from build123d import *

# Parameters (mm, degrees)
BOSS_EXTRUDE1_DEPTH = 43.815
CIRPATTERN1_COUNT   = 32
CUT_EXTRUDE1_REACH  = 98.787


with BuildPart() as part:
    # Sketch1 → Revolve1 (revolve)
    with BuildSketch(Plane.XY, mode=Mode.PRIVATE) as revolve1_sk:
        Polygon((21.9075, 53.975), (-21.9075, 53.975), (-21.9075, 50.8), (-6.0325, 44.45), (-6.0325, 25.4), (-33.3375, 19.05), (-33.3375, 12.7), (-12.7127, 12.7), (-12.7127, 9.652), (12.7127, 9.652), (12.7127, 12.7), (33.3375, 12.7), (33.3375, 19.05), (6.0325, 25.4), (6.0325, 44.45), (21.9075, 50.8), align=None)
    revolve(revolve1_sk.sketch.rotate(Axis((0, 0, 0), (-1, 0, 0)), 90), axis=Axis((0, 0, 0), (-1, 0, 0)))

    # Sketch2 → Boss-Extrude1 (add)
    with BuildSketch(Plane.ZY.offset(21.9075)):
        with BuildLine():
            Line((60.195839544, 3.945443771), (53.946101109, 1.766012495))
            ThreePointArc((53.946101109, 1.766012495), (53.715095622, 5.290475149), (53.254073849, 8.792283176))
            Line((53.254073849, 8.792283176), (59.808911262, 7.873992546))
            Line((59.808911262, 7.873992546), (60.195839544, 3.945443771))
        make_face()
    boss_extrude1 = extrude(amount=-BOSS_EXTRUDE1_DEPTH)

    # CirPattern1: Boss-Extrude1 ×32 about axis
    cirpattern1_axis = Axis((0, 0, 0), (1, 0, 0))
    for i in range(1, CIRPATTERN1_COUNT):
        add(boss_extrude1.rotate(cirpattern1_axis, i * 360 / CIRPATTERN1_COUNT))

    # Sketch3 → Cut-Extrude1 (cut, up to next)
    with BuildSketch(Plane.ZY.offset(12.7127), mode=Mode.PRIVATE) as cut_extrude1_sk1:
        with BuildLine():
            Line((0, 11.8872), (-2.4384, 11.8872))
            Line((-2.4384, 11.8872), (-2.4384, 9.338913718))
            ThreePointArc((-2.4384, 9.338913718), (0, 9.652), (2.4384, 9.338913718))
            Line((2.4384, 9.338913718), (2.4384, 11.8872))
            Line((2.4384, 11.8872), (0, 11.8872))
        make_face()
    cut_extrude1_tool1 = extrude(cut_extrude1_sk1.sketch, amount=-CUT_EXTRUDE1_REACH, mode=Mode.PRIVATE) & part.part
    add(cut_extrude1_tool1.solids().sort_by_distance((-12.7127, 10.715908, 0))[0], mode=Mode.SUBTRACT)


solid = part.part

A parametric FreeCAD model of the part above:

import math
import FreeCAD as App
import Part
import Sketcher
from FreeCAD import Vector
Q = App.Units.Quantity

doc = App.newDocument("Part")
body = doc.addObject("PartDesign::Body", "Body")

sketch1 = doc.addObject("Sketcher::SketchObject", "Sketch")
body.addObject(sketch1)
sketch1.AttachmentSupport = (doc.XY_Plane, [""])
sketch1.MapMode = "FlatFace"
sketch1.addGeometry(Part.LineSegment(Vector(21.9, 54, 0), Vector(-21.9, 54, 0)), False)
sketch1.addGeometry(Part.LineSegment(Vector(-21.9, 54, 0), Vector(-21.9, 50.8, 0)), False)
sketch1.addGeometry(Part.LineSegment(Vector(-21.9, 50.8, 0), Vector(-6, 44.5, 0)), False)
sketch1.addGeometry(Part.LineSegment(Vector(-6, 44.5, 0), Vector(-6, 25.4, 0)), False)
sketch1.addGeometry(Part.LineSegment(Vector(-6, 25.4, 0), Vector(-33.3, 19.1, 0)), False)
sketch1.addGeometry(Part.LineSegment(Vector(-33.3, 19.1, 0), Vector(-33.3, 12.7, 0)), False)
sketch1.addGeometry(Part.LineSegment(Vector(-33.3, 12.7, 0), Vector(-12.7, 12.7, 0)), False)
sketch1.addGeometry(Part.LineSegment(Vector(-12.7, 12.7, 0), Vector(-12.7, 9.7, 0)), False)
sketch1.addGeometry(Part.LineSegment(Vector(-12.7, 9.7, 0), Vector(12.7, 9.7, 0)), False)
sketch1.addGeometry(Part.LineSegment(Vector(12.7, 9.7, 0), Vector(12.7, 12.7, 0)), False)
sketch1.addGeometry(Part.LineSegment(Vector(12.7, 12.7, 0), Vector(33.3, 12.7, 0)), False)
sketch1.addGeometry(Part.LineSegment(Vector(33.3, 12.7, 0), Vector(33.3, 19.1, 0)), False)
sketch1.addGeometry(Part.LineSegment(Vector(33.3, 19.1, 0), Vector(6, 25.4, 0)), False)
sketch1.addGeometry(Part.LineSegment(Vector(6, 25.4, 0), Vector(6, 44.5, 0)), False)
sketch1.addGeometry(Part.LineSegment(Vector(6, 44.5, 0), Vector(21.9, 50.8, 0)), False)
sketch1.addGeometry(Part.LineSegment(Vector(21.9, 50.8, 0), Vector(21.9, 54, 0)), False)
sketch1.addConstraint(Sketcher.Constraint("Coincident", 0, 2, 1, 1))
sketch1.addConstraint(Sketcher.Constraint("Coincident", 1, 2, 2, 1))
sketch1.addConstraint(Sketcher.Constraint("Coincident", 2, 2, 3, 1))
sketch1.addConstraint(Sketcher.Constraint("Coincident", 3, 2, 4, 1))
sketch1.addConstraint(Sketcher.Constraint("Coincident", 4, 2, 5, 1))
sketch1.addConstraint(Sketcher.Constraint("Coincident", 5, 2, 6, 1))
sketch1.addConstraint(Sketcher.Constraint("Coincident", 6, 2, 7, 1))
sketch1.addConstraint(Sketcher.Constraint("Coincident", 7, 2, 8, 1))
sketch1.addConstraint(Sketcher.Constraint("Coincident", 8, 2, 9, 1))
sketch1.addConstraint(Sketcher.Constraint("Coincident", 9, 2, 10, 1))
sketch1.addConstraint(Sketcher.Constraint("Coincident", 10, 2, 11, 1))
sketch1.addConstraint(Sketcher.Constraint("Coincident", 11, 2, 12, 1))
sketch1.addConstraint(Sketcher.Constraint("Coincident", 12, 2, 13, 1))
sketch1.addConstraint(Sketcher.Constraint("Coincident", 13, 2, 14, 1))
sketch1.addConstraint(Sketcher.Constraint("Coincident", 14, 2, 15, 1))
sketch1.addConstraint(Sketcher.Constraint("Coincident", 15, 2, 0, 1))
sketch1.addConstraint(Sketcher.Constraint("Horizontal", 0))
sketch1.addConstraint(Sketcher.Constraint("Vertical", 1))
sketch1.addConstraint(Sketcher.Constraint("Vertical", 3))
sketch1.addConstraint(Sketcher.Constraint("Vertical", 5))
sketch1.addConstraint(Sketcher.Constraint("Horizontal", 6))
sketch1.addConstraint(Sketcher.Constraint("Vertical", 7))
sketch1.addConstraint(Sketcher.Constraint("Horizontal", 8))
sketch1.addConstraint(Sketcher.Constraint("Vertical", 9))
sketch1.addConstraint(Sketcher.Constraint("Horizontal", 10))
sketch1.addConstraint(Sketcher.Constraint("Vertical", 11))
sketch1.addConstraint(Sketcher.Constraint("Vertical", 13))
sketch1.addConstraint(Sketcher.Constraint("Vertical", 15))
sketch1.addConstraint(Sketcher.Constraint("Symmetric", 6, 2, 9, 2, -2))
sketch1.addConstraint(Sketcher.Constraint("Symmetric", 4, 2, 11, 2, -2))
sketch1.addConstraint(Sketcher.Constraint("Symmetric", 3, 2, 12, 2, -2))
sketch1.addConstraint(Sketcher.Constraint("Symmetric", 1, 2, 14, 2, -2))
sketch1.addConstraint(Sketcher.Constraint("Horizontal", 2, 2, 13, 2))
sketch1.addConstraint(Sketcher.Constraint("DistanceY", -1, 1, 1, 2, Q("2 in")))
sketch1.addConstraint(Sketcher.Constraint("DistanceY", -1, 1, 3, 2, Q("1 in")))
sketch1.addConstraint(Sketcher.Constraint("DistanceY", 4, 2, 2, 2, Q("1 in")))
sketch1.addConstraint(Sketcher.Constraint("DistanceY", 3, 2, 3, 1, Q("0.75 in")))
sketch1.addConstraint(Sketcher.Constraint("DistanceY", 5, 2, 5, 1, Q("0.25 in")))
sketch1.addConstraint(Sketcher.Constraint("DistanceY", 7, 2, 7, 1, Q("0.12 in")))
sketch1.addConstraint(Sketcher.Constraint("DistanceX", 1, 2, 13, 2, Q("1.1 in")))
sketch1.addConstraint(Sketcher.Constraint("DistanceX", 0, 2, 0, 1, Q("1.725 in")))
sketch1.addConstraint(Sketcher.Constraint("DistanceX", 6, 1, 6, 2, Q("0.812 in")))
sketch1.addConstraint(Sketcher.Constraint("DistanceX", 8, 1, 8, 2, Q("1.001 in")))
sketch1.addConstraint(Sketcher.Constraint("DistanceY", 1, 2, 1, 1, Q("0.125 in")))
revolution = doc.addObject("PartDesign::Revolution", "Revolution")
body.addObject(revolution)
revolution.Profile = sketch1
revolution.ReferenceAxis = (sketch1, ["H_Axis"])
revolution.Angle = 360

sketch2 = doc.addObject("Sketcher::SketchObject", "Sketch001")
body.addObject(sketch2)
sketch2.AttachmentSupport = (doc.YZ_Plane, [""])
sketch2.MapMode = "FlatFace"
sketch2.AttachmentOffset = App.Placement(Vector(0, 0, -0.8625 * 25.4), App.Rotation())
sketch2.addGeometry(Part.LineSegment(Vector(1.8, 53.9, 0), Vector(3.9, 60.2, 0)), False)
sketch2.addGeometry(Part.LineSegment(Vector(3.9, 60.2, 0), Vector(7.9, 59.8, 0)), False)
sketch2.addGeometry(Part.LineSegment(Vector(7.9, 59.8, 0), Vector(8.8, 53.3, 0)), False)
sketch2.addGeometry(Part.ArcOfCircle(Part.Circle(Vector(0, 0, 0), Vector(0, 0, 1), 54), math.radians(80.62), math.radians(88.12)), False)
sketch2.addConstraint(Sketcher.Constraint("Coincident", 0, 2, 1, 1))
sketch2.addConstraint(Sketcher.Constraint("Coincident", 1, 2, 2, 1))
sketch2.addConstraint(Sketcher.Constraint("Coincident", 2, 2, 3, 1))
sketch2.addConstraint(Sketcher.Constraint("Coincident", 3, 2, 0, 1))
sketch2.addConstraint(Sketcher.Constraint("Coincident", 3, 3, -1, 1))
sketch2.addConstraint(Sketcher.Constraint("Equal", 0, 2))
sketch2.addConstraint(Sketcher.Constraint("Radius", 3, Q("2.125 in")))
sketch2.addConstraint(Sketcher.Constraint("DistanceY", -1, 1, 3, 2, 53.946101))
sketch2.addConstraint(Sketcher.Constraint("Distance", 0, 6.618848))
sketch2.addConstraint(Sketcher.Constraint("DistanceY", -1, 1, 0, 2, 60.19584))
sketch2.addConstraint(Sketcher.Constraint("DistanceY", -1, 1, 1, 2, 59.808911))
sketch2.addConstraint(Sketcher.Constraint("DistanceX", 0, 2, 1, 2, 3.928549))
pad1 = doc.addObject("PartDesign::Pad", "Pad")
body.addObject(pad1)
pad1.Profile = sketch2
pad1.Length = Q("1.725 in")
doc.recompute()

polarpattern = doc.addObject("PartDesign::PolarPattern", "PolarPattern")
body.addObject(polarpattern)
polarpattern.Originals = [pad1]
polarpattern.Axis = (doc.X_Axis, [""])
polarpattern.Angle = 360
polarpattern.Occurrences = 32
body.Tip = polarpattern

sketch3 = doc.addObject("Sketcher::SketchObject", "Sketch002")
body.addObject(sketch3)
sketch3.AttachmentSupport = (doc.YZ_Plane, [""])
sketch3.MapMode = "FlatFace"
sketch3.AttachmentOffset = App.Placement(Vector(0, 0, -0.5005 * 25.4), App.Rotation())
sketch3.addGeometry(Part.LineSegment(Vector(11.9, -2.4, 0), Vector(9.3, -2.4, 0)), False)
sketch3.addGeometry(Part.ArcOfCircle(Part.Circle(Vector(0, 0, 0), Vector(0, 0, 1), 9.7), math.radians(-15), math.radians(15)), False)
sketch3.addGeometry(Part.LineSegment(Vector(9.3, 2.4, 0), Vector(11.9, 2.4, 0)), False)
sketch3.addGeometry(Part.LineSegment(Vector(11.9, 2.4, 0), Vector(11.9, -2.4, 0)), False)
sketch3.addConstraint(Sketcher.Constraint("Coincident", 0, 2, 1, 1))
sketch3.addConstraint(Sketcher.Constraint("Coincident", 1, 2, 2, 1))
sketch3.addConstraint(Sketcher.Constraint("Coincident", 2, 2, 3, 1))
sketch3.addConstraint(Sketcher.Constraint("Coincident", 3, 2, 0, 1))
sketch3.addConstraint(Sketcher.Constraint("Horizontal", 0))
sketch3.addConstraint(Sketcher.Constraint("Horizontal", 2))
sketch3.addConstraint(Sketcher.Constraint("Vertical", 3))
sketch3.addConstraint(Sketcher.Constraint("Coincident", 1, 3, -1, 1))
sketch3.addConstraint(Sketcher.Constraint("Vertical", 0, 2, 1, 2))
sketch3.addConstraint(Sketcher.Constraint("Radius", 1, Q("0.38 in")))
sketch3.addConstraint(Sketcher.Constraint("DistanceY", 3, 2, 3, 1, Q("0.192 in")))
sketch3.addConstraint(Sketcher.Constraint("DistanceX", -1, 1, 2, 2, Q("0.468 in")))
pocket1 = doc.addObject("PartDesign::Pocket", "Pocket")
body.addObject(pocket1)
pocket1.Profile = sketch3
pocket1.Type = "UpToFirst"
pocket1.Reversed = True

doc.recompute()
